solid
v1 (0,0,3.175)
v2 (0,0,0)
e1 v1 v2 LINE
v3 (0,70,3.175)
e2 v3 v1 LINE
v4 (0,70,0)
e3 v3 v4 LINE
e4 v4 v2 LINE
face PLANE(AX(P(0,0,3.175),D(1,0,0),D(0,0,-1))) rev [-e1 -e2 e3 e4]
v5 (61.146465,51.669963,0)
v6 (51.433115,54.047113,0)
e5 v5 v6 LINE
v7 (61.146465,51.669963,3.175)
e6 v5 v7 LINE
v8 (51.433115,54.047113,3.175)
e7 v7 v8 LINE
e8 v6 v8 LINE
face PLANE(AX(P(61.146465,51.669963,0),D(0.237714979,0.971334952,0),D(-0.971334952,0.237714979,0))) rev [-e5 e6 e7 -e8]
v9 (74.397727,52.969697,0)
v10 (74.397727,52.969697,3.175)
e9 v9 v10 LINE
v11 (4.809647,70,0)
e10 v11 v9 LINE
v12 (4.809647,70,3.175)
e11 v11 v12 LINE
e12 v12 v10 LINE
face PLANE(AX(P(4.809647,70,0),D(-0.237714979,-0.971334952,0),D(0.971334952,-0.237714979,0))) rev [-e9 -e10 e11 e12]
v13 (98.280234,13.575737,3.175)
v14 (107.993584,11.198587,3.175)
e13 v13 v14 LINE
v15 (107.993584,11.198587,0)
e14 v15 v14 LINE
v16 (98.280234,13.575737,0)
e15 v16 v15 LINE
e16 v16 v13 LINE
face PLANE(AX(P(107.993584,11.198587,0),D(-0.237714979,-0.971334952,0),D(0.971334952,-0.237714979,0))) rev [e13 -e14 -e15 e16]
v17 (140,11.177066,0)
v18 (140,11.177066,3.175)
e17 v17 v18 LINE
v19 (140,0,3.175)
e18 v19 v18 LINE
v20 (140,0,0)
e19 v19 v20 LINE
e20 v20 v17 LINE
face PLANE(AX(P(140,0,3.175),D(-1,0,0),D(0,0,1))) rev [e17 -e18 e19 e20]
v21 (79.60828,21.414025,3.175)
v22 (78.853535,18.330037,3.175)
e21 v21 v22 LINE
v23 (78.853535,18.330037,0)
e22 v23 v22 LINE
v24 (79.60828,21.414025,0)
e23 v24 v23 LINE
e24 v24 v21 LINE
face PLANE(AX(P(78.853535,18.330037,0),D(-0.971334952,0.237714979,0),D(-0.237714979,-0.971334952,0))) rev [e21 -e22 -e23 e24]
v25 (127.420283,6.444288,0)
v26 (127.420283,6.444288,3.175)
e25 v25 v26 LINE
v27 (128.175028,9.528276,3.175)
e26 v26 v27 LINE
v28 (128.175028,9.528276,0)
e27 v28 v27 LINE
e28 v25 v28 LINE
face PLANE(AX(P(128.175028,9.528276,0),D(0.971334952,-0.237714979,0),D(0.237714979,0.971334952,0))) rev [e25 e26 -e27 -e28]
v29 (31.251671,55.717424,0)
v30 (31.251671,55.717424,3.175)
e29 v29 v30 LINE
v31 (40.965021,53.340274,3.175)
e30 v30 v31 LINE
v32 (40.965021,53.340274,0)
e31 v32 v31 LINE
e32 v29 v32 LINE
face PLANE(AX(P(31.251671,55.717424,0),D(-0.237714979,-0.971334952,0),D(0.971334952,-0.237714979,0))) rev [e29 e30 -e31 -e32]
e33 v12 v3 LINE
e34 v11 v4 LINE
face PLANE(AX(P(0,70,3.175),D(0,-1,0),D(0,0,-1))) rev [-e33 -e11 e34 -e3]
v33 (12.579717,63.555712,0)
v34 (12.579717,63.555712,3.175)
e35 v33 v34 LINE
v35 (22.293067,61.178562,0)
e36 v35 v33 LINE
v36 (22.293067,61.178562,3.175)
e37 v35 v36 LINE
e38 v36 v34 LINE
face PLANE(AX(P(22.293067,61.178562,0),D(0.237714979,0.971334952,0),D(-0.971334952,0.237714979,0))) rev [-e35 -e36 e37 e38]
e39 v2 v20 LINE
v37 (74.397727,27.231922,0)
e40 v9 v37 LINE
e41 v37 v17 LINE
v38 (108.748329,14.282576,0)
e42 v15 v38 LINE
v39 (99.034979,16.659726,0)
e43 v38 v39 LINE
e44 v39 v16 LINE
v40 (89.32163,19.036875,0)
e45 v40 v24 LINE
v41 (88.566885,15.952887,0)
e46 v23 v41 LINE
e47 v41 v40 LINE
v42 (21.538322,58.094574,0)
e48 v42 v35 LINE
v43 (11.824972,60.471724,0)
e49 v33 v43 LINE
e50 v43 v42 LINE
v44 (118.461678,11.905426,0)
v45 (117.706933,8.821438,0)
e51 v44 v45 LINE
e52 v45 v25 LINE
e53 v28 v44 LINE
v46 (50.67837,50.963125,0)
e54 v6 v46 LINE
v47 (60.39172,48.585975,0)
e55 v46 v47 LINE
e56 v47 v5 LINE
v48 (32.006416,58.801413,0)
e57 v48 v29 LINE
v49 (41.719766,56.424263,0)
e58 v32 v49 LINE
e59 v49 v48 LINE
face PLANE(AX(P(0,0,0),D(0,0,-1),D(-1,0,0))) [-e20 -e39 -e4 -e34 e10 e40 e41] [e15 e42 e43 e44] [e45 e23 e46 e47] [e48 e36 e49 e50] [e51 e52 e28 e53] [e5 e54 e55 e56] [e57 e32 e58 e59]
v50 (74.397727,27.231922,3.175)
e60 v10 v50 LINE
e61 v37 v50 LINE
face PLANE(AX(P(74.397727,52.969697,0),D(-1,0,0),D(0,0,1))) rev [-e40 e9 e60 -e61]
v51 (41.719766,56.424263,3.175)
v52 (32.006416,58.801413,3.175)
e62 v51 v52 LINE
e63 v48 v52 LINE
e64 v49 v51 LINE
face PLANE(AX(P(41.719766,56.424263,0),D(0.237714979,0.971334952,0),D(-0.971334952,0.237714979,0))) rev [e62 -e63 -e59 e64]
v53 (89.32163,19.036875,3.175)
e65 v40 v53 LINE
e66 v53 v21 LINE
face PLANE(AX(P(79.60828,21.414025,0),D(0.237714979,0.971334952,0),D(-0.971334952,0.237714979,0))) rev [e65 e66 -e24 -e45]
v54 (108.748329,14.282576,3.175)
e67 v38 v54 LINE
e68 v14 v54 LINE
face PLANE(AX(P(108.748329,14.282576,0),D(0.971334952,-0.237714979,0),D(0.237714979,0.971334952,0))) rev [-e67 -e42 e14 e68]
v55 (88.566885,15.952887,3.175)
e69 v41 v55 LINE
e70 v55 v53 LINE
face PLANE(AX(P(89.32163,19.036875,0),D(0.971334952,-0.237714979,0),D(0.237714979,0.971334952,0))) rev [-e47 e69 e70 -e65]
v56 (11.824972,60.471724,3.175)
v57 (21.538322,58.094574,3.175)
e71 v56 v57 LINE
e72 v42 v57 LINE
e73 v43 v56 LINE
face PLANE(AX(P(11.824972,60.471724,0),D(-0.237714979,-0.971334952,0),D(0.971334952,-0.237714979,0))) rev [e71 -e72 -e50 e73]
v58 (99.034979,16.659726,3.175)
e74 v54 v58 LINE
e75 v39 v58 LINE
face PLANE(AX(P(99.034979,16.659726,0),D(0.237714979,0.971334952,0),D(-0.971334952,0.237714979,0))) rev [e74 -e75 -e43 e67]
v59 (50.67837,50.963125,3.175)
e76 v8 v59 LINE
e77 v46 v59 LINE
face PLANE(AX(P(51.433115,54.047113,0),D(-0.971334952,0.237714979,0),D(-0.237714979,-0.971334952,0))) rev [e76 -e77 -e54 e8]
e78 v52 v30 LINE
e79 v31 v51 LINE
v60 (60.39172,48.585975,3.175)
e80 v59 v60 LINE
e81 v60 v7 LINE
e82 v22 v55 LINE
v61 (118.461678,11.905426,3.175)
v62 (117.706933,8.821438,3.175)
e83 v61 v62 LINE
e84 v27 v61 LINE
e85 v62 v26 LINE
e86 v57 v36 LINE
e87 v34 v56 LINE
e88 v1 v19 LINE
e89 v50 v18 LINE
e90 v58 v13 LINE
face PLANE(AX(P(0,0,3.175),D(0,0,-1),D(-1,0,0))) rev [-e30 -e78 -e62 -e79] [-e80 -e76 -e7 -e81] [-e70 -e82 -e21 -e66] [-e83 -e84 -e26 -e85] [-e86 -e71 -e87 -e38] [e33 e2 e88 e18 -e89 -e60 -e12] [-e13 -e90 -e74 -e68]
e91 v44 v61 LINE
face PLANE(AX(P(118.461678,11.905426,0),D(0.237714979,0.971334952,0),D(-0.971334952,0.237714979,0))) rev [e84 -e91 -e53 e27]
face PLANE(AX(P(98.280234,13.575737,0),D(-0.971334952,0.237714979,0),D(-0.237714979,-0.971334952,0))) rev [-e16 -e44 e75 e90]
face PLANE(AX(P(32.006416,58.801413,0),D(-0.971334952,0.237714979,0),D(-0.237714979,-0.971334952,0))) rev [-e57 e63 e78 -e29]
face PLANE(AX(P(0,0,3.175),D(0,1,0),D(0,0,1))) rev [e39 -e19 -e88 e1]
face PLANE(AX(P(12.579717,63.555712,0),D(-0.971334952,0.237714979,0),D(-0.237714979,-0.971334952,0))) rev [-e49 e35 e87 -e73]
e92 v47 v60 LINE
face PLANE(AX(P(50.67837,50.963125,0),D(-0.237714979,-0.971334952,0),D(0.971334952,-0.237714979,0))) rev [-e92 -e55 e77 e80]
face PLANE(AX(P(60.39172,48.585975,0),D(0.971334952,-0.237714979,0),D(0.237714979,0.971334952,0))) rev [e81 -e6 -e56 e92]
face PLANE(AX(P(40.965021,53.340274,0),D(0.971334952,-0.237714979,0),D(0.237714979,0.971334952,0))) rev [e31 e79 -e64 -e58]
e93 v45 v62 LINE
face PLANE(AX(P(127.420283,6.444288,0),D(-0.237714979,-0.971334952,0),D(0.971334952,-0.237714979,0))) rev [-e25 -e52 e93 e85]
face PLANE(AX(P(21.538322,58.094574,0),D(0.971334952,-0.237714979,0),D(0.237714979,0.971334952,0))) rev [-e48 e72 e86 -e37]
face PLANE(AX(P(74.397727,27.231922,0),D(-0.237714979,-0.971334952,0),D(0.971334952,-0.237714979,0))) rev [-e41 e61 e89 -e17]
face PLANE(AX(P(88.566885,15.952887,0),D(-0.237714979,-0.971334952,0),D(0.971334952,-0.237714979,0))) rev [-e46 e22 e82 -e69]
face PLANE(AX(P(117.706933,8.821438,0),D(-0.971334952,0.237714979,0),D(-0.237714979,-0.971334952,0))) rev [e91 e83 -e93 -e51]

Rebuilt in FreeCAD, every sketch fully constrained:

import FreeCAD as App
import Part
import Sketcher
from FreeCAD import Vector
Q = App.Units.Quantity


def add_polygon(sketch, points):
    """Adds a closed chain of lines whose ends are joined by coincident constraints."""
    first, n = sketch.GeometryCount, len(points)
    for a, b in zip(points, points[1:] + points[:1]):
        sketch.addGeometry(Part.LineSegment(App.Vector(*a, 0), App.Vector(*b, 0)), False)
    for i in range(n):
        sketch.addConstraint(Sketcher.Constraint("Coincident", first + i, 2, first + (i + 1) % n, 1))

doc = App.newDocument("Part")
params = doc.addObject("Spreadsheet::Sheet", "Params")
for row, (alias, value) in enumerate([
    ("sketch1_width", "140 mm"),
    ("sketch1_height", "70 mm"),
    ("pad1_length", "3.175 mm"),
    ("sketch2_length", "10 mm"),
], start=1):
    params.set(f"A{row}", alias)
    params.set(f"B{row}", "=" + value)
    params.setAlias(f"B{row}", alias)

body = doc.addObject("PartDesign::Body", "Body")

# Sketch on XY plane
sketch1 = body.newObject("Sketcher::SketchObject", "Sketch")
sketch1.AttachmentSupport = (doc.getObject("XY_Plane"), [""])
sketch1.MapMode = "FlatFace"
add_polygon(sketch1, [(0, 70), (0, 0), (140, 0), (140, 70)])  # lines 0-3
sketch1.addConstraint([
    Sketcher.Constraint("Vertical", 0),
    Sketcher.Constraint("Horizontal", 1),
    Sketcher.Constraint("Vertical", 2),
    Sketcher.Constraint("Horizontal", 3),
    Sketcher.Constraint("Coincident", 0, 2, -1, 1),
    Sketcher.Constraint("DistanceX", 1, 1, 1, 2, Q("140 mm")),
    Sketcher.Constraint("DistanceY", 0, 2, 0, 1, Q("70 mm")),
])
sketch1.setExpression("Constraints[9]", "Params.sketch1_width")
sketch1.setExpression("Constraints[10]", "Params.sketch1_height")
pad1 = body.newObject("PartDesign::Pad", "Pad")
pad1.Profile = sketch1
pad1.setExpression("Length", "Params.pad1_length")

# Sketch on XY plane
sketch2 = body.newObject("Sketcher::SketchObject", "Sketch001")
sketch2.AttachmentSupport = (doc.getObject("XY_Plane"), [""])
sketch2.MapMode = "FlatFace"
sketch2.AttachmentOffset = App.Placement(Vector(0, 0, 3.175), App.Rotation())
add_polygon(sketch2, [(12.6, 63.6), (11.8, 60.5), (21.5, 58.1), (22.3, 61.2)])  # lines 0-3
add_polygon(sketch2, [(41.7, 56.4), (32, 58.8), (31.3, 55.7), (41, 53.3)])  # lines 4-7
add_polygon(sketch2, [(61.1, 51.7), (51.4, 54), (50.7, 51), (60.4, 48.6)])  # lines 8-11
add_polygon(sketch2, [(128.2, 9.5), (118.5, 11.9), (117.7, 8.8), (127.4, 6.4)])  # lines 12-15
add_polygon(sketch2, [(99, 16.7), (98.3, 13.6), (108, 11.2), (108.7, 14.3)])  # lines 16-19
add_polygon(sketch2, [(79.6, 21.4), (78.9, 18.3), (88.6, 16), (89.3, 19)])  # lines 20-23
sketch2.addConstraint([
    Sketcher.Constraint("Perpendicular", 0, 1),
    Sketcher.Constraint("Perpendicular", 1, 2),
    Sketcher.Constraint("Perpendicular", 2, 3),
    Sketcher.Constraint("Parallel", 3, 4),
    Sketcher.Constraint("Perpendicular", 4, 5),
    Sketcher.Constraint("Perpendicular", 5, 6),
    Sketcher.Constraint("Perpendicular", 6, 7),
    Sketcher.Constraint("Perpendicular", 7, 8),
    Sketcher.Constraint("Perpendicular", 8, 9),
    Sketcher.Constraint("Perpendicular", 9, 10),
    Sketcher.Constraint("Perpendicular", 10, 11),
    Sketcher.Constraint("Perpendicular", 11, 12),
    Sketcher.Constraint("Perpendicular", 12, 13),
    Sketcher.Constraint("Perpendicular", 13, 14),
    Sketcher.Constraint("Perpendicular", 14, 15),
    Sketcher.Constraint("Parallel", 15, 16),
    Sketcher.Constraint("Perpendicular", 16, 17),
    Sketcher.Constraint("Perpendicular", 17, 18),
    Sketcher.Constraint("Perpendicular", 18, 19),
    Sketcher.Constraint("Perpendicular", 19, 20),
    Sketcher.Constraint("Perpendicular", 20, 21),
    Sketcher.Constraint("Perpendicular", 21, 22),
    Sketcher.Constraint("Perpendicular", 22, 23),
    Sketcher.Constraint("Equal", 3, 4),
    Sketcher.Constraint("Equal", 2, 5),
    Sketcher.Constraint("Equal", 6, 8),
    Sketcher.Constraint("Equal", 7, 9),
    Sketcher.Constraint("Equal", 10, 12),
    Sketcher.Constraint("Equal", 11, 13),
    Sketcher.Constraint("Equal", 15, 16),
    Sketcher.Constraint("Equal", 14, 17),
    Sketcher.Constraint("Equal", 18, 20),
    Sketcher.Constraint("Equal", 19, 21),
    Sketcher.Constraint("Distance", 1, Q("10 mm")),
    Sketcher.Constraint("Distance", 0, Q("3.175 mm")),
    Sketcher.Constraint("DistanceX", 3, 2, 4, 2, Q("19.426699 mm")),
    Sketcher.Constraint("DistanceY", 4, 2, 3, 2, Q("4.7543 mm")),
    Sketcher.Constraint("DistanceX", 4, 2, 8, 2, Q("19.426699 mm")),
    Sketcher.Constraint("DistanceY", 8, 2, 4, 2, Q("4.7543 mm")),
    Sketcher.Constraint("DistanceY", 12, 2, 9, 2, Q("39.057698 mm")),
    Sketcher.Constraint("DistanceX", 16, 2, 13, 2, Q("19.426699 mm")),
    Sketcher.Constraint("DistanceY", 13, 2, 16, 2, Q("4.7543 mm")),
    Sketcher.Constraint("DistanceX", 20, 2, 16, 2, Q("19.426699 mm")),
    Sketcher.Constraint("DistanceY", 16, 2, 20, 2, Q("4.7543 mm")),
    Sketcher.Constraint("DistanceX", -1, 1, 1, 2, Q("21.538322 mm")),
    Sketcher.Constraint("DistanceX", -1, 1, 5, 2, Q("31.251671 mm")),
    Sketcher.Constraint("DistanceX", -1, 1, 12, 2, Q("118.461678 mm")),
    Sketcher.Constraint("DistanceY", -1, 1, 0, 2, Q("60.471724 mm")),
])
sketch2.setExpression("Constraints[57]", "Params.sketch2_length")
pocket1 = body.newObject("PartDesign::Pocket", "Pocket")
pocket1.Profile = sketch2
pocket1.Type = "ThroughAll"

# Sketch on XY plane
sketch3 = body.newObject("Sketcher::SketchObject", "Sketch002")
sketch3.AttachmentSupport = (doc.getObject("XY_Plane"), [""])
sketch3.MapMode = "FlatFace"
sketch3.AttachmentOffset = App.Placement(Vector(0, 0, 3.175), App.Rotation())
add_polygon(sketch3, [(5, 70), (74, 53), (74, 27), (140, 11), (140, 70)])  # lines 0-4
sketch3.addConstraint([
    Sketcher.Constraint("Vertical", 1),
    Sketcher.Constraint("Vertical", 3),
    Sketcher.Constraint("Horizontal", 4),
    Sketcher.Constraint("Parallel", 0, 2),
    Sketcher.Constraint("DistanceX", -1, 1, 2, 2, Q("140 mm")),
    Sketcher.Constraint("DistanceY", -1, 1, 3, 2, Q("70 mm")),
    Sketcher.Constraint("Distance", 2, Q("67.53826 mm")),
    Sketcher.Constraint("DistanceX", 4, 2, 4, 1, Q("135.190353 mm")),
    Sketcher.Constraint("DistanceY", 1, 2, 1, 1, Q("25.737775 mm")),
    Sketcher.Constraint("DistanceY", 3, 1, 3, 2, Q("58.822934 mm")),
])
pocket2 = body.newObject("PartDesign::Pocket", "Pocket001")
pocket2.Profile = sketch3
pocket2.Type = "ThroughAll"

doc.recompute()
